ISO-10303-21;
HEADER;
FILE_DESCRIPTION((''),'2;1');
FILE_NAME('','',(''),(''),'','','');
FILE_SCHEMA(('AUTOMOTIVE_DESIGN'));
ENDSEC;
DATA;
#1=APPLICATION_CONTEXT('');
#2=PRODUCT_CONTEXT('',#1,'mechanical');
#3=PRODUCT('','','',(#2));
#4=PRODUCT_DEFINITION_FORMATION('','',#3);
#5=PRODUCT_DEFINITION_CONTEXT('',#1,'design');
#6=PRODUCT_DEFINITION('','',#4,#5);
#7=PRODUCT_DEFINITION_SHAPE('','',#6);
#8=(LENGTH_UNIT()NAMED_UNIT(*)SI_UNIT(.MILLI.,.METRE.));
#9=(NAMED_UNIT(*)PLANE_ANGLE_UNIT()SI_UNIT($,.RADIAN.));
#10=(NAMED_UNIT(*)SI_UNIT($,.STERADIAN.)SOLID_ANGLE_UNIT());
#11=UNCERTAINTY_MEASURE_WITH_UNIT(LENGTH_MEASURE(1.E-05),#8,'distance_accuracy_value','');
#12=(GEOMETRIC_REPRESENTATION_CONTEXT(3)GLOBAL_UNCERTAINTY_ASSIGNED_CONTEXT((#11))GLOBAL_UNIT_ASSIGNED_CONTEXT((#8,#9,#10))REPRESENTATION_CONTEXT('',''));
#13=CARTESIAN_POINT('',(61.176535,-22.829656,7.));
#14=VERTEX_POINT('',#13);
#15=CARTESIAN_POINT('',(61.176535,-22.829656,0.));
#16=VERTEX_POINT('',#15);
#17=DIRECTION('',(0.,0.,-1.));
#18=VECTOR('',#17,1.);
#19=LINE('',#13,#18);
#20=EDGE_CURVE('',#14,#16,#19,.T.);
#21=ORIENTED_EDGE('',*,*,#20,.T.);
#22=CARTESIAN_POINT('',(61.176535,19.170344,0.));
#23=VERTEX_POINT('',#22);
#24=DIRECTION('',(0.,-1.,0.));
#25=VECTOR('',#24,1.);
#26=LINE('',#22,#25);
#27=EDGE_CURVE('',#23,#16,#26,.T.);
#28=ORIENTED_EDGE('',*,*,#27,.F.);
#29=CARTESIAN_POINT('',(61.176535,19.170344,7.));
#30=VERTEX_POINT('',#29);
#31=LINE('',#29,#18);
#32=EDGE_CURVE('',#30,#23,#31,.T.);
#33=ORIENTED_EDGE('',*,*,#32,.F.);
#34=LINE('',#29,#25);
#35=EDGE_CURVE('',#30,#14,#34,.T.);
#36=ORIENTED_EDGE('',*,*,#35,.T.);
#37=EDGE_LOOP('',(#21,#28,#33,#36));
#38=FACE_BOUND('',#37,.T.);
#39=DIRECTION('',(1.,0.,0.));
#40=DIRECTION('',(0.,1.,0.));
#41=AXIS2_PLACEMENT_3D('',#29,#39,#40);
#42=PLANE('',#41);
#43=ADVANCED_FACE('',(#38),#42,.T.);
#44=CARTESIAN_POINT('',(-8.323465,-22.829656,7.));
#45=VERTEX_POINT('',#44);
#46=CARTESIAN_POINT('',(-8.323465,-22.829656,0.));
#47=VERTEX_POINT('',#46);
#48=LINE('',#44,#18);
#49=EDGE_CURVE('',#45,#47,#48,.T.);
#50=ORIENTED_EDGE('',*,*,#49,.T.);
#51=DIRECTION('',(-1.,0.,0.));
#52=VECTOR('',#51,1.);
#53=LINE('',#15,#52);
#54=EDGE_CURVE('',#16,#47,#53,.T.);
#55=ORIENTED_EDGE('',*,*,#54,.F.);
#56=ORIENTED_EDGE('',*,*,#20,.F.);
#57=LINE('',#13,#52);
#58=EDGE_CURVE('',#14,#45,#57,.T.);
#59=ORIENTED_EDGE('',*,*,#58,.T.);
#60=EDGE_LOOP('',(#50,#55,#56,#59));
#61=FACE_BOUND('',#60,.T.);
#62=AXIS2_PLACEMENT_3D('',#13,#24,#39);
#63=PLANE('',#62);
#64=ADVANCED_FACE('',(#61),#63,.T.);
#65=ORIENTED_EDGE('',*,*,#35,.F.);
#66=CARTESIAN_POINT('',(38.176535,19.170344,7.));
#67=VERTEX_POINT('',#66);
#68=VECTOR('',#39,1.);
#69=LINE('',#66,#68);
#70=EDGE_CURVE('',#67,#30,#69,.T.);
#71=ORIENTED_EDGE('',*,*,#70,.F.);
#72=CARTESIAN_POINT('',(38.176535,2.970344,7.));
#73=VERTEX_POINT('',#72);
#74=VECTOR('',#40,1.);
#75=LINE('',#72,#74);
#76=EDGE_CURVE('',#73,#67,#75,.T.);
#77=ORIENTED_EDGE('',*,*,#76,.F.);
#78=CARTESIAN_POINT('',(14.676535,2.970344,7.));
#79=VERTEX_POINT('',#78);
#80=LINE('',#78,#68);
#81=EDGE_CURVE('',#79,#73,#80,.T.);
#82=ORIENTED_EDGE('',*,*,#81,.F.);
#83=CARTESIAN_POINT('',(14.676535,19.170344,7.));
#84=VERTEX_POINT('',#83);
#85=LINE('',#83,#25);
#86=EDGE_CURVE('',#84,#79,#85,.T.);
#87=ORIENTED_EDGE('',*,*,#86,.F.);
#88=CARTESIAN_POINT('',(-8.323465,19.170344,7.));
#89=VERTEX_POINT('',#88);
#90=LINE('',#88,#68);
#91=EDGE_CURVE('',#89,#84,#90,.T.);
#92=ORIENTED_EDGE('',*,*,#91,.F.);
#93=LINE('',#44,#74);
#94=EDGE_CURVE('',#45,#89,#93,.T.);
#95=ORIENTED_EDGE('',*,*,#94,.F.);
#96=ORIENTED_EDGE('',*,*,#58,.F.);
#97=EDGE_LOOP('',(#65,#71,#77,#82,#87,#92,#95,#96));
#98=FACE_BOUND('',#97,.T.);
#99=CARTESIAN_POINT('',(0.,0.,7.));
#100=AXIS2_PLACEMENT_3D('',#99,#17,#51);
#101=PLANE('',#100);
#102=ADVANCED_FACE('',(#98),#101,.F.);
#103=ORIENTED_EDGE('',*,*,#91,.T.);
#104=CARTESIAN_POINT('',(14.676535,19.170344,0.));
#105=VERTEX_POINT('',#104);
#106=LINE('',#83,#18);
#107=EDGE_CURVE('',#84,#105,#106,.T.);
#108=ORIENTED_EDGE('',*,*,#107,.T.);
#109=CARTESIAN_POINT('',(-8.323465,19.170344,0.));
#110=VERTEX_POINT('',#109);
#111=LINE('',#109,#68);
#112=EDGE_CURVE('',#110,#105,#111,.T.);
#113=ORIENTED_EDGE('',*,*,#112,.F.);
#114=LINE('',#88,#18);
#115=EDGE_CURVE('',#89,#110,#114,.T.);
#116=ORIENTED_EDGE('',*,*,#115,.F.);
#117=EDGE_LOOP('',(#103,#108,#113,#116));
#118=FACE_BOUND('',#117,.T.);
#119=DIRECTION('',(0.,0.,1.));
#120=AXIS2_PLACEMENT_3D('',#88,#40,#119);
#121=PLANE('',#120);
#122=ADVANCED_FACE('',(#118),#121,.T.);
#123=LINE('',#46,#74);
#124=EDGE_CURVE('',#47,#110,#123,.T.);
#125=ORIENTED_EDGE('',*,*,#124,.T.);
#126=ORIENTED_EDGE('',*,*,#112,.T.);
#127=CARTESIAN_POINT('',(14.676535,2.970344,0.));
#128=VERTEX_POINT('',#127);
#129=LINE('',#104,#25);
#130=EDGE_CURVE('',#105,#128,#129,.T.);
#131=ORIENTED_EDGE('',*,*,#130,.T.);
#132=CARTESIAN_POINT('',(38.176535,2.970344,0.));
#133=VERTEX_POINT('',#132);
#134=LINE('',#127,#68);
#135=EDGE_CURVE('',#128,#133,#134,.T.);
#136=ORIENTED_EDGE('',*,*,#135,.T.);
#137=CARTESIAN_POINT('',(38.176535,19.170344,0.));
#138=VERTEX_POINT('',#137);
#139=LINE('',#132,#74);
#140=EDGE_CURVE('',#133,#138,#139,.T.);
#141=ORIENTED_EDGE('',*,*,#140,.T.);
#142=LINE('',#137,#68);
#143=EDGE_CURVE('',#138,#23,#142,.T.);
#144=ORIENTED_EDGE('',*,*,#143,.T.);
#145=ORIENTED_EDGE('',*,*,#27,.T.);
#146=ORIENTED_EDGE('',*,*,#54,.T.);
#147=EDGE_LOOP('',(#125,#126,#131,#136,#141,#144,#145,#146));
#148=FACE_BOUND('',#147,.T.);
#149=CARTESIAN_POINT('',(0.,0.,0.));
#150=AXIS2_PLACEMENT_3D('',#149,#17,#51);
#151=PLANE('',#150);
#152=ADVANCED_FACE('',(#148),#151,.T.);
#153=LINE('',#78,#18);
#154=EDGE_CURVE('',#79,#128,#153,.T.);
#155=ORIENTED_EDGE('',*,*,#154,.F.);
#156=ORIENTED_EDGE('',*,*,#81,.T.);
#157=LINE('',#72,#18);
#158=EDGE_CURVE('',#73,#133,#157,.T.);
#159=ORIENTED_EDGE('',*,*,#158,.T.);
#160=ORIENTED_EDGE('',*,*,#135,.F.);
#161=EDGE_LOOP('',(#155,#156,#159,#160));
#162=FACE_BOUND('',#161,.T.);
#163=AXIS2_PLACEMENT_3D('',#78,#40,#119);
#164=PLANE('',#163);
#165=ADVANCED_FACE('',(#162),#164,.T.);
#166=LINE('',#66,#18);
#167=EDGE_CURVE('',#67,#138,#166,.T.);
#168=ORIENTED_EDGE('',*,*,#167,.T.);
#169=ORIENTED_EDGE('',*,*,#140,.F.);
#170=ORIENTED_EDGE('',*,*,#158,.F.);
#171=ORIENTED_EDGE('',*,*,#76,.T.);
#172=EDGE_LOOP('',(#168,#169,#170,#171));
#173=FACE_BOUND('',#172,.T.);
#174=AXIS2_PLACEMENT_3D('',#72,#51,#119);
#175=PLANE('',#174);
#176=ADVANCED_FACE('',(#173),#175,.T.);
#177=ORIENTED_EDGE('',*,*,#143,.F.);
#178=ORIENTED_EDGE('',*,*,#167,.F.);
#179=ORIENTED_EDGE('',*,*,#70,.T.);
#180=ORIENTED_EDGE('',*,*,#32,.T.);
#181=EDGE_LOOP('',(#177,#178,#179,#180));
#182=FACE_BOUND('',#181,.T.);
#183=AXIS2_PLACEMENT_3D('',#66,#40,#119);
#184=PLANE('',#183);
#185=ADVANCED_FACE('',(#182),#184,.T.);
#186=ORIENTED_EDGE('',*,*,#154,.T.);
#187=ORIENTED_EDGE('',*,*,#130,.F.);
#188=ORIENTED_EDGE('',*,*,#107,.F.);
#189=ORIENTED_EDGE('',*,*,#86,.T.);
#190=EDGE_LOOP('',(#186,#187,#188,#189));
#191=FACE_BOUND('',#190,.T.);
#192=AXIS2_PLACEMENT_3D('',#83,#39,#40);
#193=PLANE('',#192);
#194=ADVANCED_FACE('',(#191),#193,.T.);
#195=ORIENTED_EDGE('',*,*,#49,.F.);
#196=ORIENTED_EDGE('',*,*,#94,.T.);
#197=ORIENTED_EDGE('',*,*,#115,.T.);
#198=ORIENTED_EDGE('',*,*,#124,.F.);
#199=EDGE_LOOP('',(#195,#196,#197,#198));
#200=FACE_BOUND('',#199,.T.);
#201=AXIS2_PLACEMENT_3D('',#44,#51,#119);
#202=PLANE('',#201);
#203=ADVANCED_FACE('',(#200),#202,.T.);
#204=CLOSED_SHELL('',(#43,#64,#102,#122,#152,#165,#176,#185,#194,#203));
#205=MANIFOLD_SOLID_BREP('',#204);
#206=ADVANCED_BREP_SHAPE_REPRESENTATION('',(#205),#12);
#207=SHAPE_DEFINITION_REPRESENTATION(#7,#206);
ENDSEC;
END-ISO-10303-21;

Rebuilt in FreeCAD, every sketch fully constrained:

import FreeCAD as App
import Part
import Sketcher

V = App.Vector
Q = App.Units.Quantity

doc = App.newDocument("Part")
body = doc.addObject("PartDesign::Body", "Body")

# Sketch on XY plane
sketch1 = body.newObject("Sketcher::SketchObject", "Sketch")
sketch1.AttachmentSupport = (doc.getObject("XY_Plane"), [""])
sketch1.MapMode = "FlatFace"
sketch1.addGeometry(Part.LineSegment(V(61, 19, 0), V(38, 19, 0)), False)
sketch1.addGeometry(Part.LineSegment(V(38, 19, 0), V(38, 3, 0)), False)
sketch1.addGeometry(Part.LineSegment(V(38, 3, 0), V(15, 3, 0)), False)
sketch1.addGeometry(Part.LineSegment(V(15, 3, 0), V(15, 19, 0)), False)
sketch1.addGeometry(Part.LineSegment(V(15, 19, 0), V(-8, 19, 0)), False)
sketch1.addGeometry(Part.LineSegment(V(-8, 19, 0), V(-8, -23, 0)), False)
sketch1.addGeometry(Part.LineSegment(V(-8, -23, 0), V(61, -23, 0)), False)
sketch1.addGeometry(Part.LineSegment(V(61, -23, 0), V(61, 19, 0)), False)
sketch1.addConstraint(Sketcher.Constraint("Coincident", 0, 2, 1, 1))
sketch1.addConstraint(Sketcher.Constraint("Coincident", 1, 2, 2, 1))
sketch1.addConstraint(Sketcher.Constraint("Coincident", 2, 2, 3, 1))
sketch1.addConstraint(Sketcher.Constraint("Coincident", 3, 2, 4, 1))
sketch1.addConstraint(Sketcher.Constraint("Coincident", 4, 2, 5, 1))
sketch1.addConstraint(Sketcher.Constraint("Coincident", 5, 2, 6, 1))
sketch1.addConstraint(Sketcher.Constraint("Coincident", 6, 2, 7, 1))
sketch1.addConstraint(Sketcher.Constraint("Coincident", 7, 2, 0, 1))
sketch1.addConstraint(Sketcher.Constraint("Horizontal", 0))
sketch1.addConstraint(Sketcher.Constraint("Vertical", 1))
sketch1.addConstraint(Sketcher.Constraint("Horizontal", 2))
sketch1.addConstraint(Sketcher.Constraint("Vertical", 3))
sketch1.addConstraint(Sketcher.Constraint("Horizontal", 4))
sketch1.addConstraint(Sketcher.Constraint("Vertical", 5))
sketch1.addConstraint(Sketcher.Constraint("Horizontal", 6))
sketch1.addConstraint(Sketcher.Constraint("Vertical", 7))
sketch1.addConstraint(Sketcher.Constraint("Horizontal", 0, 2, 3, 2))
sketch1.addConstraint(Sketcher.Constraint("Equal", 0, 4))
sketch1.addConstraint(Sketcher.Constraint("DistanceX", 0, 2, 0, 1, Q("23 mm")))
sketch1.addConstraint(Sketcher.Constraint("DistanceY", 5, 2, 5, 1, Q("42 mm")))
sketch1.addConstraint(Sketcher.Constraint("DistanceX", 2, 2, 2, 1, Q("23.5 mm")))
sketch1.addConstraint(Sketcher.Constraint("DistanceY", 1, 2, 1, 1, Q("16.2 mm")))
sketch1.addConstraint(Sketcher.Constraint("DistanceX", -1, 1, 0, 2, Q("38.176535 mm")))
sketch1.addConstraint(Sketcher.Constraint("DistanceY", -1, 1, 0, 2, Q("19.170344 mm")))
pad1 = body.newObject("PartDesign::Pad", "Pad")
pad1.Profile = sketch1
pad1.Length = 7

doc.recompute()
